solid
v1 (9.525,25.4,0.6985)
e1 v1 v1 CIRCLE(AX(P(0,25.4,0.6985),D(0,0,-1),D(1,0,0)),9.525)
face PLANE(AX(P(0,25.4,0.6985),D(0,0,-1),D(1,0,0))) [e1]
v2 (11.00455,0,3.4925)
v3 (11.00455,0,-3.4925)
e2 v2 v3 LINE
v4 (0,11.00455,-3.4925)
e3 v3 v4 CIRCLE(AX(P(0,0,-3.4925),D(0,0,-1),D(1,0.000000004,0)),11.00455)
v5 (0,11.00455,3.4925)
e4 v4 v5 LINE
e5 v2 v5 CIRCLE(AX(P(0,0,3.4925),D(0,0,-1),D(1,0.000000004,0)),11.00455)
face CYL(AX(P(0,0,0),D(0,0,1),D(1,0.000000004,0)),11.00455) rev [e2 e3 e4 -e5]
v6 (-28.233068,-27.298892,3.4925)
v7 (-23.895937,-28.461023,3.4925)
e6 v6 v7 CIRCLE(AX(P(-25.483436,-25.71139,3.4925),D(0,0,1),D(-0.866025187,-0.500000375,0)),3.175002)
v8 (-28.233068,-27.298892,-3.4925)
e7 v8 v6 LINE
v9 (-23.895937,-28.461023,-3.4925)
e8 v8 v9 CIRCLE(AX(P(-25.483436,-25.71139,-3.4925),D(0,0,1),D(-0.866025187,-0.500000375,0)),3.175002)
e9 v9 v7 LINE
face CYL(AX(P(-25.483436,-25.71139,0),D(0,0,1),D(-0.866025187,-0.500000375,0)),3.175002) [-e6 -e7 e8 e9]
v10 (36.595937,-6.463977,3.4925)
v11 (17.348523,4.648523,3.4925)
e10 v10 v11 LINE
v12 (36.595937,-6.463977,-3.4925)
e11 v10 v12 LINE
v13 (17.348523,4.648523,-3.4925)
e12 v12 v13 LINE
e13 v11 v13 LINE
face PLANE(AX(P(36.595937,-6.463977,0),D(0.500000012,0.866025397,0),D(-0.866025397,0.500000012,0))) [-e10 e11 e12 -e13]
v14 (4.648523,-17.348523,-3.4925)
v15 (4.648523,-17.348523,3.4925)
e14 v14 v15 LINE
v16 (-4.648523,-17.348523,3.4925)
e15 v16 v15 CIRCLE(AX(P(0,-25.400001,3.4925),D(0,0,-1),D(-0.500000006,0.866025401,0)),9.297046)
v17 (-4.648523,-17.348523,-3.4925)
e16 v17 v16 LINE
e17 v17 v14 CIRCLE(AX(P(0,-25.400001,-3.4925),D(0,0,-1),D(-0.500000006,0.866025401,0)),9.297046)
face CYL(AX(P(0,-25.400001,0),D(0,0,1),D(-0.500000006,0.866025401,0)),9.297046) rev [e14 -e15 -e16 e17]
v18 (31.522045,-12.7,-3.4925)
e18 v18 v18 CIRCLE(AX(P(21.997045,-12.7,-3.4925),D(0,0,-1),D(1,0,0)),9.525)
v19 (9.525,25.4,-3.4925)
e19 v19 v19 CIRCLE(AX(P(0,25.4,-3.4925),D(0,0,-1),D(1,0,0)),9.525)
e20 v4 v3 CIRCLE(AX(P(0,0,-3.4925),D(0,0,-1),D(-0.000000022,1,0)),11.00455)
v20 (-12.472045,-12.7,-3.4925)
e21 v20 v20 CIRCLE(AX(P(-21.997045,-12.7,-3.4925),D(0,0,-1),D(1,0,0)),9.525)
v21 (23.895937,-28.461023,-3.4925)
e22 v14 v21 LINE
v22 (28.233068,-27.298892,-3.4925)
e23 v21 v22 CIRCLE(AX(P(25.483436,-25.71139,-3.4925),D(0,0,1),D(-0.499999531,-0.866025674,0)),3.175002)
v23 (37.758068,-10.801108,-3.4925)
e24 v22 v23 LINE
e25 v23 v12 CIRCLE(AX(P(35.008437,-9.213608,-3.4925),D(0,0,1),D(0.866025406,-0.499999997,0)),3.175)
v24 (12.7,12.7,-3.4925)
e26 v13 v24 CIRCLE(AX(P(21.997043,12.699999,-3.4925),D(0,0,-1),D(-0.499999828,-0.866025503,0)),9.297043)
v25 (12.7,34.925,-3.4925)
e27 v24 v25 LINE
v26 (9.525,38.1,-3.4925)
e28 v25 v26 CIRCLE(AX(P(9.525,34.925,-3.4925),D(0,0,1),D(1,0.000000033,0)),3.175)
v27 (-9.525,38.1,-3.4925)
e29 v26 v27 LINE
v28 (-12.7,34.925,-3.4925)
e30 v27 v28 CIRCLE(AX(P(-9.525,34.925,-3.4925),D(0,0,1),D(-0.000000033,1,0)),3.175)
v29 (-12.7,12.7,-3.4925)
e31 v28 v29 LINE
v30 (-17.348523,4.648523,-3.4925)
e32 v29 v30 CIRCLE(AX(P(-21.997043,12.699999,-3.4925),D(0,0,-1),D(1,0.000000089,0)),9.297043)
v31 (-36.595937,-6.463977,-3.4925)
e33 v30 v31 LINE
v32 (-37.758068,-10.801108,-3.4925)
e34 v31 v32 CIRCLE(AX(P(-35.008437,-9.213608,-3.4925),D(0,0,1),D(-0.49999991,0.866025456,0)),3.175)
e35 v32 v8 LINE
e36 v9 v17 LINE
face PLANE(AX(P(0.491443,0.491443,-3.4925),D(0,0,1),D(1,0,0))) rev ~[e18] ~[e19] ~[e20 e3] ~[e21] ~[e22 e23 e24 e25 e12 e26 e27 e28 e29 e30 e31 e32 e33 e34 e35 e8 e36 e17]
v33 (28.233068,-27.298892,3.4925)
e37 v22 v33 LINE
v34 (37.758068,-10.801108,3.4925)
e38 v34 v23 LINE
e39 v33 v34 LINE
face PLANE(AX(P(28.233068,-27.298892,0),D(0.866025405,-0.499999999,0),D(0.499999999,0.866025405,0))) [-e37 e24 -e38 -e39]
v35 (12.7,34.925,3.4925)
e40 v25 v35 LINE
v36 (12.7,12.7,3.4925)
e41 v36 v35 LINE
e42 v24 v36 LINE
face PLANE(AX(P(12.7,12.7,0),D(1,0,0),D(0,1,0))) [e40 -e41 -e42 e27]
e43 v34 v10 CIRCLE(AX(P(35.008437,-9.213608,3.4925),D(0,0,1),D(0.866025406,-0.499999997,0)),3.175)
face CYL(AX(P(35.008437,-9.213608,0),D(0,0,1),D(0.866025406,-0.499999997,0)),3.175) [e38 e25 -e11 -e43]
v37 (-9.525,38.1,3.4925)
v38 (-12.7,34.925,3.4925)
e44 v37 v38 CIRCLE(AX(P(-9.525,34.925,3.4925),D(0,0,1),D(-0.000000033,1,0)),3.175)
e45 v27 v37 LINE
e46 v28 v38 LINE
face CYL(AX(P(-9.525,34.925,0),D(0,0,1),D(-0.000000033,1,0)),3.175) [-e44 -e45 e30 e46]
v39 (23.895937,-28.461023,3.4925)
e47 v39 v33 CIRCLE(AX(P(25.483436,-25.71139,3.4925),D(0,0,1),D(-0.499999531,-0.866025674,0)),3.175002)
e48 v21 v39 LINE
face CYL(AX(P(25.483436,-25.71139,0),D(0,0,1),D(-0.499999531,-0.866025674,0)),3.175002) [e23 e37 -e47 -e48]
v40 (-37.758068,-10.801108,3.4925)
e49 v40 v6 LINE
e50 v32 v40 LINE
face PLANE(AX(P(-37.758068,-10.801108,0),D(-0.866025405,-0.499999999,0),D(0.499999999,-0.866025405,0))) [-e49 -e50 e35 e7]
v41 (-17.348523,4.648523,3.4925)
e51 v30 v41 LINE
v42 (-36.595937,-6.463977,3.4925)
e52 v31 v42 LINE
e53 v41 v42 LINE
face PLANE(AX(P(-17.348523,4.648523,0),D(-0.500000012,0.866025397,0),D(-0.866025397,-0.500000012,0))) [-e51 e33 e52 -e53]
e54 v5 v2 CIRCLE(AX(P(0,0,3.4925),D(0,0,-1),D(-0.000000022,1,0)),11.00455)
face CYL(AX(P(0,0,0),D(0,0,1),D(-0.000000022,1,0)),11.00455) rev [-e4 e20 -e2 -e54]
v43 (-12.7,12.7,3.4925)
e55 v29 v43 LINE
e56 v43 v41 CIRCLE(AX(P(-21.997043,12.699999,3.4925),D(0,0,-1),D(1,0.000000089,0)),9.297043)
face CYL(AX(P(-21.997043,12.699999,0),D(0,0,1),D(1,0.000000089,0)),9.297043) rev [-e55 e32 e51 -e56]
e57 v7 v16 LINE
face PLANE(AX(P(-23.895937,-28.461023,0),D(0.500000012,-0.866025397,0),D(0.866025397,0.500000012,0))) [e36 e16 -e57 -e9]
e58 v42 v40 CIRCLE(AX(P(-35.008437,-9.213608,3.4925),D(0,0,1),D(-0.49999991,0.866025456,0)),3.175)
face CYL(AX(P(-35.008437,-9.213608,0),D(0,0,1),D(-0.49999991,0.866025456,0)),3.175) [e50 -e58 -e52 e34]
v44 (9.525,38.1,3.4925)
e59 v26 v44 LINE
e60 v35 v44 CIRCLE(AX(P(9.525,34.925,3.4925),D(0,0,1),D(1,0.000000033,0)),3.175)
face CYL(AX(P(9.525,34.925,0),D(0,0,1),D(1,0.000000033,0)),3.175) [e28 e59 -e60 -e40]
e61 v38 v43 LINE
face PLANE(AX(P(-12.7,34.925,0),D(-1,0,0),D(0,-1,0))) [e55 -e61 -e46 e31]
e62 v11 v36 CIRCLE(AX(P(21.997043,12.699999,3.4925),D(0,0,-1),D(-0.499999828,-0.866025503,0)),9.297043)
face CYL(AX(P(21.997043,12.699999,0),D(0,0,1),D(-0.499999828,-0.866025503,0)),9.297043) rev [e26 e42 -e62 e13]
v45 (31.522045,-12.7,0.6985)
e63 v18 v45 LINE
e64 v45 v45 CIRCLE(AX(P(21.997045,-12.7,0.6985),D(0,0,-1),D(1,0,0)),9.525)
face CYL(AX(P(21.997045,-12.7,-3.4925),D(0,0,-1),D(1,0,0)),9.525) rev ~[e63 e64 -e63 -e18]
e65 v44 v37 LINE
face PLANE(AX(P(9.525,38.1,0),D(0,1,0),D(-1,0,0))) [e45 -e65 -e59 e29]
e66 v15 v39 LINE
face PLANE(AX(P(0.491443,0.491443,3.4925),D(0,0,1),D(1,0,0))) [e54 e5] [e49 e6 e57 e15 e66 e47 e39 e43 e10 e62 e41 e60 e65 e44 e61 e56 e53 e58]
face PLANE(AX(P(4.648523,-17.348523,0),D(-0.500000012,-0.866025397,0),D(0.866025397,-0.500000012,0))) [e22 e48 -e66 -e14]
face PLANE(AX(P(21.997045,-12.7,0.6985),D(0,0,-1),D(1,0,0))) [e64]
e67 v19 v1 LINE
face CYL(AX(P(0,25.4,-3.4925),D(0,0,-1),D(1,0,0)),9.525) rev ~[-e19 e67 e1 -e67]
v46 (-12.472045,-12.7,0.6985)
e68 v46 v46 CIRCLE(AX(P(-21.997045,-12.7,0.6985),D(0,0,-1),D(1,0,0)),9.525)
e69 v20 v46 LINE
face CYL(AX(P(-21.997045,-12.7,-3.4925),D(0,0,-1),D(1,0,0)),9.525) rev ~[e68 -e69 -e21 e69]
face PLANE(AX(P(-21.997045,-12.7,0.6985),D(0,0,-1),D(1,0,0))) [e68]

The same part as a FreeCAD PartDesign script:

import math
import FreeCAD as App
import Part
import Sketcher
Q = App.Units.Quantity

doc = App.newDocument("Part")
body = doc.addObject("PartDesign::Body", "Body")

# Sketch on XY plane
sketch1 = doc.addObject("Sketcher::SketchObject", "Sketch")
body.addObject(sketch1)
sketch1.AttachmentSupport = (doc.XY_Plane, [""])
sketch1.MapMode = "FlatFace"
sketch1.addGeometry([
    Part.ArcOfCircle(Part.Circle(App.Vector(21.997043, 12.699999, 0), App.Vector(0, 0, 1), 9.297043), math.radians(179.999995), math.radians(240.000011)),  # 0
    Part.LineSegment(App.Vector(12.7, 12.7, 0), App.Vector(12.7, 34.925, 0)),  # 1
    Part.ArcOfCircle(Part.Circle(App.Vector(9.525, 34.925, 0), App.Vector(0, 0, 1), 3.175), math.radians(0.000002), math.radians(89.999998)),  # 2
    Part.LineSegment(App.Vector(9.525, 38.1, 0), App.Vector(-9.525, 38.1, 0)),  # 3
    Part.ArcOfCircle(Part.Circle(App.Vector(-9.525, 34.925, 0), App.Vector(0, 0, 1), 3.175), math.radians(90.000002), math.radians(179.999998)),  # 4
    Part.LineSegment(App.Vector(-12.7, 34.925, 0), App.Vector(-12.7, 12.7, 0)),  # 5
    Part.ArcOfCircle(Part.Circle(App.Vector(-21.997043, 12.699999, 0), App.Vector(0, 0, 1), 9.297043), math.radians(-60.000011), math.radians(0.000005)),  # 6
    Part.LineSegment(App.Vector(-17.348523, 4.648523, 0), App.Vector(-36.595937, -6.463977, 0)),  # 7
    Part.ArcOfCircle(Part.Circle(App.Vector(-35.008437, -9.213608, 0), App.Vector(0, 0, 1), 3.175), math.radians(119.999994), math.radians(210)),  # 8
    Part.LineSegment(App.Vector(-37.758068, -10.801108, 0), App.Vector(-28.233068, -27.298892, 0)),  # 9
    Part.ArcOfCircle(Part.Circle(App.Vector(-25.483436, -25.71139, 0), App.Vector(0, 0, 1), 3.175002), math.radians(-149.999975), math.radians(-60.000031)),  # 10
    Part.LineSegment(App.Vector(-23.895937, -28.461023, 0), App.Vector(-4.648523, -17.348523, 0)),  # 11
    Part.ArcOfCircle(Part.Circle(App.Vector(0, -25.400001, 0), App.Vector(0, 0, 1), 9.297046), math.radians(60), math.radians(120)),  # 12
    Part.LineSegment(App.Vector(4.648523, -17.348523, 0), App.Vector(23.895937, -28.461023, 0)),  # 13
    Part.ArcOfCircle(Part.Circle(App.Vector(25.483436, -25.71139, 0), App.Vector(0, 0, 1), 3.175002), math.radians(-119.999969), math.radians(-30.000025)),  # 14
    Part.LineSegment(App.Vector(28.233068, -27.298892, 0), App.Vector(37.758068, -10.801108, 0)),  # 15
    Part.ArcOfCircle(Part.Circle(App.Vector(35.008437, -9.213608, 0), App.Vector(0, 0, 1), 3.175), math.radians(-30), math.radians(60.000006)),  # 16
    Part.LineSegment(App.Vector(36.595937, -6.463977, 0), App.Vector(17.348523, 4.648523, 0)),  # 17
    Part.ArcOfCircle(Part.Circle(App.Vector(0, 0, 0), App.Vector(0, 0, 1), 11.00455), math.radians(90), math.radians(360)),  # 18
    Part.ArcOfCircle(Part.Circle(App.Vector(0, 0, 0), App.Vector(0, 0, 1), 11.00455), math.radians(-0.000001), math.radians(90.000001)),  # 19
], False)
sketch1.addConstraint([
    Sketcher.Constraint("Tangent", 0, 1, 1, 1),
    Sketcher.Constraint("Tangent", 1, 2, 2, 1),
    Sketcher.Constraint("Tangent", 2, 2, 3, 1),
    Sketcher.Constraint("Tangent", 3, 2, 4, 1),
    Sketcher.Constraint("Tangent", 4, 2, 5, 1),
    Sketcher.Constraint("Tangent", 5, 2, 6, 2),
    Sketcher.Constraint("Tangent", 6, 1, 7, 1),
    Sketcher.Constraint("Tangent", 7, 2, 8, 1),
    Sketcher.Constraint("Tangent", 8, 2, 9, 1),
    Sketcher.Constraint("Tangent", 9, 2, 10, 1),
    Sketcher.Constraint("Tangent", 10, 2, 11, 1),
    Sketcher.Constraint("Tangent", 11, 2, 12, 2),
    Sketcher.Constraint("Tangent", 12, 1, 13, 1),
    Sketcher.Constraint("Tangent", 13, 2, 14, 1),
    Sketcher.Constraint("Tangent", 14, 2, 15, 1),
    Sketcher.Constraint("Tangent", 15, 2, 16, 1),
    Sketcher.Constraint("Tangent", 16, 2, 17, 1),
    Sketcher.Constraint("Tangent", 17, 2, 0, 2),
    Sketcher.Constraint("Tangent", 18, 1, 19, 2),
    Sketcher.Constraint("Coincident", 19, 1, 18, 2),
    Sketcher.Constraint("Vertical", 1),
    Sketcher.Constraint("Horizontal", 3),
    Sketcher.Constraint("Vertical", 5),
    Sketcher.Constraint("Coincident", 18, 3, -1, 1),
    Sketcher.Constraint("Equal", 2, 4),
    Sketcher.Constraint("Equal", 0, 6),
    Sketcher.Constraint("Equal", 4, 8),
    Sketcher.Constraint("Equal", 8, 10),
    Sketcher.Constraint("Equal", 10, 14),
    Sketcher.Constraint("Equal", 14, 16),
    Sketcher.Constraint("Symmetric", 0, 3, 6, 3, -2),
    Sketcher.Constraint("Symmetric", 10, 3, 14, 3, -2),
    Sketcher.Constraint("Symmetric", 8, 3, 16, 3, -2),
    Sketcher.Constraint("PointOnObject", 12, 3, -2),
    Sketcher.Constraint("PointOnObject", 18, 1, -2),
    Sketcher.Constraint("PointOnObject", 19, 1, -1),
    Sketcher.Constraint("Perpendicular", 7, 9),
    Sketcher.Constraint("Perpendicular", 9, 11),
    Sketcher.Constraint("Equal", 7, 11),
    Sketcher.Constraint("DistanceY", 12, 3, -1, 1, Q("1 in")),
    Sketcher.Constraint("Angle", 7, Q("-149.999999 deg")),
    Sketcher.Constraint("Radius", 2, Q("0.125 in")),
    Sketcher.Constraint("DistanceY", 0, 1, 2, 2, Q("1 in")),
    Sketcher.Constraint("DistanceX", 3, 2, 3, 1, Q("0.75 in")),
    Sketcher.Constraint("DistanceY", -1, 1, 0, 3, Q("0.5 in")),
    Sketcher.Constraint("Distance", 9, Q("0.75 in")),
    Sketcher.Constraint("Distance", 7, Q("0.875 in")),
    Sketcher.Constraint("Radius", 18, 11.00455),
])
pad1 = doc.addObject("PartDesign::Pad", "Pad")
body.addObject(pad1)
pad1.Profile = sketch1
pad1.Length = Q("0.275 in")
pad1.Midplane = True

# Sketch on XY plane
sketch2 = doc.addObject("Sketcher::SketchObject", "Sketch001")
body.addObject(sketch2)
sketch2.AttachmentSupport = (doc.XY_Plane, [""])
sketch2.MapMode = "FlatFace"
sketch2.AttachmentOffset = App.Placement(App.Vector(0, 0, -0.1375 * 25.4), App.Rotation())
sketch2.addGeometry([
    Part.Circle(App.Vector(0, 25.4, 0), App.Vector(0, 0, 1), 9.525),
    Part.Circle(App.Vector(21.997045, -12.7, 0), App.Vector(0, 0, 1), 9.525),
    Part.Circle(App.Vector(-21.997045, -12.7, 0), App.Vector(0, 0, 1), 9.525),
], False)
sketch2.addConstraint([
    Sketcher.Constraint("Equal", 0, 1),
    Sketcher.Constraint("Equal", 1, 2),
    Sketcher.Constraint("Symmetric", 1, 3, 2, 3, -2),
    Sketcher.Constraint("PointOnObject", 0, 3, -2),
    Sketcher.Constraint("Diameter", 0, Q("0.75 in")),
    Sketcher.Constraint("DistanceY", -1, 1, 0, 3, Q("1 in")),
    Sketcher.Constraint("DistanceY", 1, 3, -1, 1, Q("0.5 in")),
    Sketcher.Constraint("DistanceX", 2, 3, 1, 3, 43.99409),
])
pocket1 = doc.addObject("PartDesign::Pocket", "Pocket")
body.addObject(pocket1)
pocket1.Profile = sketch2
pocket1.Length = Q("0.165 in")
pocket1.Reversed = True

doc.recompute()
